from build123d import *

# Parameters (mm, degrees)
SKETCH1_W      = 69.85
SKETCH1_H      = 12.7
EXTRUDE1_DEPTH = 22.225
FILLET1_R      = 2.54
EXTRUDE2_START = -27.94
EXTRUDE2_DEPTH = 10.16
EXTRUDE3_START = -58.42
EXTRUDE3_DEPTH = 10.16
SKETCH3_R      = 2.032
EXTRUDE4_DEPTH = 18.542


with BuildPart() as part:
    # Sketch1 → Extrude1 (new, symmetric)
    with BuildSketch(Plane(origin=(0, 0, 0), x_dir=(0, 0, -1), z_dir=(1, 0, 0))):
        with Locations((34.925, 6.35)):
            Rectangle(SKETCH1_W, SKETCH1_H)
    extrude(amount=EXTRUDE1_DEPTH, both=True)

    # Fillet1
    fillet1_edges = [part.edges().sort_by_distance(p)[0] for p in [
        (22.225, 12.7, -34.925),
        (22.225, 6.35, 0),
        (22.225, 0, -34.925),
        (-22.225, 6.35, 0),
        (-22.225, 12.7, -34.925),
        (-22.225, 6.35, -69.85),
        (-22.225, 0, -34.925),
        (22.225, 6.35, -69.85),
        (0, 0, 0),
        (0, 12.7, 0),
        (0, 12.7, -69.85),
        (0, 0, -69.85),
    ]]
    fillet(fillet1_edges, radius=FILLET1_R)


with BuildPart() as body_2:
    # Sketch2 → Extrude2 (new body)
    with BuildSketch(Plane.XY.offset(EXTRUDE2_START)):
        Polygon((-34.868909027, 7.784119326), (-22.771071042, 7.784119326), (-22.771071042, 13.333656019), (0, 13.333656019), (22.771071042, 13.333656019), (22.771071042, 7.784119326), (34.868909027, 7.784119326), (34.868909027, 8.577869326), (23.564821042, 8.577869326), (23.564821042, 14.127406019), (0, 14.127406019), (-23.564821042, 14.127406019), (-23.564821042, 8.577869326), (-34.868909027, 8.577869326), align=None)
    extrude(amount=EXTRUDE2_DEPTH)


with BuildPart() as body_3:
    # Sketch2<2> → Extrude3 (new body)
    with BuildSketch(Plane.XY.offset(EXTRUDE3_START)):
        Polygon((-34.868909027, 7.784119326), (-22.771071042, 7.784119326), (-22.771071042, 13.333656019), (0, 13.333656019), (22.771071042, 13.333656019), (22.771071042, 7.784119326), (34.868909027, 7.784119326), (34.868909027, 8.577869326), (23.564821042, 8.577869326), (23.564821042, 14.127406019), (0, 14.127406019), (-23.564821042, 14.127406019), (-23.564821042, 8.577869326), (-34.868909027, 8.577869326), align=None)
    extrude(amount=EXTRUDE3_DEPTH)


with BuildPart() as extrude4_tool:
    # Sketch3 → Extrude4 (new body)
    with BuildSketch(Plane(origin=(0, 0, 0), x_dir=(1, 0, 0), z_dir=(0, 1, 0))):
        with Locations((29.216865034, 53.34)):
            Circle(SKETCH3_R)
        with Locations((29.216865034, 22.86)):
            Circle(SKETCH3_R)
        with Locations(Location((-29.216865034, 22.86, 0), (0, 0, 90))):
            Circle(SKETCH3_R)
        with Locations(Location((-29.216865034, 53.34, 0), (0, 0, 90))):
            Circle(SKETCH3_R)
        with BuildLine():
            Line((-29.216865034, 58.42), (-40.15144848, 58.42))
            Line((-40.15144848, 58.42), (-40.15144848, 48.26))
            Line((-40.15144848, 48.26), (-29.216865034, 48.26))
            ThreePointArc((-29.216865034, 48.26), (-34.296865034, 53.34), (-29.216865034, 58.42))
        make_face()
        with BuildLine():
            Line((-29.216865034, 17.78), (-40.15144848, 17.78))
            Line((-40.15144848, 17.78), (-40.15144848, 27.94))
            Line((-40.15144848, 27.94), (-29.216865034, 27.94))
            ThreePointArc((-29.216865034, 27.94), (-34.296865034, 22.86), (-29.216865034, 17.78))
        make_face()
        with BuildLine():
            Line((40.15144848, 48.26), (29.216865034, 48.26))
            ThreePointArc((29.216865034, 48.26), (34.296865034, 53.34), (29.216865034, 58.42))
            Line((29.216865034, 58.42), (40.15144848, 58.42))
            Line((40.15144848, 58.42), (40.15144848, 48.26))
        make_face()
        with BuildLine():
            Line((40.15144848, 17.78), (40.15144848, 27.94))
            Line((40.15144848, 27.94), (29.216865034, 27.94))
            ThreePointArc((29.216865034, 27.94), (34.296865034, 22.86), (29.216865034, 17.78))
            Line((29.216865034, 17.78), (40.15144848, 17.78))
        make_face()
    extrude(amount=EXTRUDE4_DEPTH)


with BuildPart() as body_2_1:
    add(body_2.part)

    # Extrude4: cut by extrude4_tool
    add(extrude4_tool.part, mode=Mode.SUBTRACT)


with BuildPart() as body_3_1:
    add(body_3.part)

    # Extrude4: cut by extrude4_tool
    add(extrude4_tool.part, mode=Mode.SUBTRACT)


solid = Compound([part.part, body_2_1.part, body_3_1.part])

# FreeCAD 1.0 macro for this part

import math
import FreeCAD as App
import Part
import Sketcher
Q = App.Units.Quantity

doc = App.newDocument("Part")
body = doc.addObject("PartDesign::Body", "Body")

sketch1 = doc.addObject("Sketcher::SketchObject", "Sketch")
body.addObject(sketch1)
sketch1.AttachmentSupport = (doc.YZ_Plane, [""])
sketch1.MapMode = "FlatFace"
sketch1.addGeometry([
    Part.LineSegment(App.Vector(13, 0, 0), App.Vector(0, 0, 0)),
    Part.LineSegment(App.Vector(0, 0, 0), App.Vector(0, -70, 0)),
    Part.LineSegment(App.Vector(0, -70, 0), App.Vector(13, -70, 0)),
    Part.LineSegment(App.Vector(13, -70, 0), App.Vector(13, 0, 0)),
], False)
sketch1.addConstraint([
    Sketcher.Constraint("Coincident", 0, 2, 1, 1),
    Sketcher.Constraint("Coincident", 1, 2, 2, 1),
    Sketcher.Constraint("Coincident", 2, 2, 3, 1),
    Sketcher.Constraint("Coincident", 3, 2, 0, 1),
    Sketcher.Constraint("Horizontal", 0),
    Sketcher.Constraint("Vertical", 1),
    Sketcher.Constraint("Horizontal", 2),
    Sketcher.Constraint("Vertical", 3),
    Sketcher.Constraint("Coincident", 0, 2, -1, 1),
    Sketcher.Constraint("DistanceX", 0, 2, 0, 1, Q("0.5 in")),
    Sketcher.Constraint("DistanceY", 1, 2, 1, 1, Q("2.75 in")),
])
pad1 = doc.addObject("PartDesign::Pad", "Pad")
body.addObject(pad1)
pad1.Profile = sketch1
pad1.Length = Q("1.75 in")
pad1.Midplane = True
doc.recompute()

fillet = doc.addObject("PartDesign::Fillet", "Fillet")
body.addObject(fillet)
fillet.Base = (pad1, ["Edge1"])
fillet.UseAllEdges = True
fillet.Radius = Q("0.1 in")
body2 = doc.addObject("PartDesign::Body", "Body001")

sketch2 = doc.addObject("Sketcher::SketchObject", "Sketch001")
body2.addObject(sketch2)
sketch2.AttachmentSupport = (doc.getObject("XY_Plane001"), [""])
sketch2.MapMode = "FlatFace"
sketch2.AttachmentOffset = App.Placement(App.Vector(0, 0, -1.1 * 25.4), App.Rotation())
sketch2.addGeometry([
    Part.LineSegment(App.Vector(-34.9, 7.8, 0), App.Vector(-22.8, 7.8, 0)),
    Part.LineSegment(App.Vector(-22.8, 7.8, 0), App.Vector(-22.8, 13.3, 0)),
    Part.LineSegment(App.Vector(-22.8, 13.3, 0), App.Vector(22.8, 13.3, 0)),
    Part.LineSegment(App.Vector(22.8, 13.3, 0), App.Vector(22.8, 7.8, 0)),
    Part.LineSegment(App.Vector(22.8, 7.8, 0), App.Vector(34.9, 7.8, 0)),
    Part.LineSegment(App.Vector(34.9, 7.8, 0), App.Vector(34.9, 8.6, 0)),
    Part.LineSegment(App.Vector(34.9, 8.6, 0), App.Vector(23.6, 8.6, 0)),
    Part.LineSegment(App.Vector(23.6, 8.6, 0), App.Vector(23.6, 14.1, 0)),
    Part.LineSegment(App.Vector(23.6, 14.1, 0), App.Vector(-23.6, 14.1, 0)),
    Part.LineSegment(App.Vector(-23.6, 14.1, 0), App.Vector(-23.6, 8.6, 0)),
    Part.LineSegment(App.Vector(-23.6, 8.6, 0), App.Vector(-34.9, 8.6, 0)),
    Part.LineSegment(App.Vector(-34.9, 8.6, 0), App.Vector(-34.9, 7.8, 0)),
], False)
sketch2.addConstraint([
    Sketcher.Constraint("Coincident", 0, 2, 1, 1),
    Sketcher.Constraint("Coincident", 1, 2, 2, 1),
    Sketcher.Constraint("Coincident", 2, 2, 3, 1),
    Sketcher.Constraint("Coincident", 3, 2, 4, 1),
    Sketcher.Constraint("Coincident", 4, 2, 5, 1),
    Sketcher.Constraint("Coincident", 5, 2, 6, 1),
    Sketcher.Constraint("Coincident", 6, 2, 7, 1),
    Sketcher.Constraint("Coincident", 7, 2, 8, 1),
    Sketcher.Constraint("Coincident", 8, 2, 9, 1),
    Sketcher.Constraint("Coincident", 9, 2, 10, 1),
    Sketcher.Constraint("Coincident", 10, 2, 11, 1),
    Sketcher.Constraint("Coincident", 11, 2, 0, 1),
    Sketcher.Constraint("Horizontal", 0),
    Sketcher.Constraint("Vertical", 1),
    Sketcher.Constraint("Horizontal", 2),
    Sketcher.Constraint("Vertical", 3),
    Sketcher.Constraint("Horizontal", 4),
    Sketcher.Constraint("Vertical", 5),
    Sketcher.Constraint("Horizontal", 6),
    Sketcher.Constraint("Vertical", 7),
    Sketcher.Constraint("Horizontal", 8),
    Sketcher.Constraint("Vertical", 9),
    Sketcher.Constraint("Horizontal", 10),
    Sketcher.Constraint("Vertical", 11),
    Sketcher.Constraint("Symmetric", 0, 2, 3, 2, -2),
    Sketcher.Constraint("Symmetric", 6, 2, 9, 2, -2),
    Sketcher.Constraint("Equal", 0, 4),
    Sketcher.Constraint("Equal", 3, 7),
    Sketcher.Constraint("DistanceY", 5, 1, 5, 2, Q("0.03125 in")),
    Sketcher.Constraint("DistanceX", 3, 2, 6, 2, Q("0.03125 in")),
    Sketcher.Constraint("DistanceX", 0, 1, 0, 2, 12.097838),
    Sketcher.Constraint("DistanceX", 2, 1, 2, 2, 45.542142),
    Sketcher.Constraint("DistanceY", 1, 1, 1, 2, 5.549537),
    Sketcher.Constraint("DistanceY", -1, 1, 0, 2, 7.784119),
])
pad2 = doc.addObject("PartDesign::Pad", "Pad001")
body2.addObject(pad2)
pad2.Profile = sketch2
pad2.Length = Q("0.4 in")
body3 = doc.addObject("PartDesign::Body", "Body002")

sketch3 = doc.addObject("Sketcher::SketchObject", "Sketch002")
body3.addObject(sketch3)
sketch3.AttachmentSupport = (doc.getObject("XY_Plane002"), [""])
sketch3.MapMode = "FlatFace"
sketch3.AttachmentOffset = App.Placement(App.Vector(0, 0, -2.3 * 25.4), App.Rotation())
sketch3.addGeometry([
    Part.LineSegment(App.Vector(-34.9, 7.8, 0), App.Vector(-22.8, 7.8, 0)),
    Part.LineSegment(App.Vector(-22.8, 7.8, 0), App.Vector(-22.8, 13.3, 0)),
    Part.LineSegment(App.Vector(-22.8, 13.3, 0), App.Vector(22.8, 13.3, 0)),
    Part.LineSegment(App.Vector(22.8, 13.3, 0), App.Vector(22.8, 7.8, 0)),
    Part.LineSegment(App.Vector(22.8, 7.8, 0), App.Vector(34.9, 7.8, 0)),
    Part.LineSegment(App.Vector(34.9, 7.8, 0), App.Vector(34.9, 8.6, 0)),
    Part.LineSegment(App.Vector(34.9, 8.6, 0), App.Vector(23.6, 8.6, 0)),
    Part.LineSegment(App.Vector(23.6, 8.6, 0), App.Vector(23.6, 14.1, 0)),
    Part.LineSegment(App.Vector(23.6, 14.1, 0), App.Vector(-23.6, 14.1, 0)),
    Part.LineSegment(App.Vector(-23.6, 14.1, 0), App.Vector(-23.6, 8.6, 0)),
    Part.LineSegment(App.Vector(-23.6, 8.6, 0), App.Vector(-34.9, 8.6, 0)),
    Part.LineSegment(App.Vector(-34.9, 8.6, 0), App.Vector(-34.9, 7.8, 0)),
], False)
sketch3.addConstraint([
    Sketcher.Constraint("Coincident", 0, 2, 1, 1),
    Sketcher.Constraint("Coincident", 1, 2, 2, 1),
    Sketcher.Constraint("Coincident", 2, 2, 3, 1),
    Sketcher.Constraint("Coincident", 3, 2, 4, 1),
    Sketcher.Constraint("Coincident", 4, 2, 5, 1),
    Sketcher.Constraint("Coincident", 5, 2, 6, 1),
    Sketcher.Constraint("Coincident", 6, 2, 7, 1),
    Sketcher.Constraint("Coincident", 7, 2, 8, 1),
    Sketcher.Constraint("Coincident", 8, 2, 9, 1),
    Sketcher.Constraint("Coincident", 9, 2, 10, 1),
    Sketcher.Constraint("Coincident", 10, 2, 11, 1),
    Sketcher.Constraint("Coincident", 11, 2, 0, 1),
    Sketcher.Constraint("Horizontal", 0),
    Sketcher.Constraint("Vertical", 1),
    Sketcher.Constraint("Horizontal", 2),
    Sketcher.Constraint("Vertical", 3),
    Sketcher.Constraint("Horizontal", 4),
    Sketcher.Constraint("Vertical", 5),
    Sketcher.Constraint("Horizontal", 6),
    Sketcher.Constraint("Vertical", 7),
    Sketcher.Constraint("Horizontal", 8),
    Sketcher.Constraint("Vertical", 9),
    Sketcher.Constraint("Horizontal", 10),
    Sketcher.Constraint("Vertical", 11),
    Sketcher.Constraint("Symmetric", 0, 2, 3, 2, -2),
    Sketcher.Constraint("Symmetric", 6, 2, 9, 2, -2),
    Sketcher.Constraint("Equal", 0, 4),
    Sketcher.Constraint("Equal", 3, 7),
    Sketcher.Constraint("DistanceY", 5, 1, 5, 2, Q("0.03125 in")),
    Sketcher.Constraint("DistanceX", 3, 2, 6, 2, Q("0.03125 in")),
    Sketcher.Constraint("DistanceX", 0, 1, 0, 2, 12.097838),
    Sketcher.Constraint("DistanceX", 2, 1, 2, 2, 45.542142),
    Sketcher.Constraint("DistanceY", 1, 1, 1, 2, 5.549537),
    Sketcher.Constraint("DistanceY", -1, 1, 0, 2, 7.784119),
])
pad3 = doc.addObject("PartDesign::Pad", "Pad002")
body3.addObject(pad3)
pad3.Profile = sketch3
pad3.Length = Q("0.4 in")
body4 = doc.addObject("PartDesign::Body", "Body003")
body4.AllowCompound = True

sketch4 = doc.addObject("Sketcher::SketchObject", "Sketch003")
body4.addObject(sketch4)
sketch4.AttachmentSupport = (doc.getObject("XZ_Plane003"), [""])
sketch4.MapMode = "FlatFace"
sketch4.addGeometry([
    Part.Circle(App.Vector(29.2, -53.3, 0), App.Vector(0, 0, 1), 2),
    Part.Circle(App.Vector(29.2, -22.9, 0), App.Vector(0, 0, 1), 2),
    Part.Circle(App.Vector(-29.2, -22.9, 0), App.Vector(0, 0, 1), 2),
    Part.Circle(App.Vector(-29.2, -53.3, 0), App.Vector(0, 0, 1), 2),
    Part.LineSegment(App.Vector(-29.2, -58.4, 0), App.Vector(-40.2, -58.4, 0)),
    Part.LineSegment(App.Vector(-40.2, -58.4, 0), App.Vector(-40.2, -48.3, 0)),
    Part.LineSegment(App.Vector(-40.2, -48.3, 0), App.Vector(-29.2, -48.3, 0)),
    Part.ArcOfCircle(Part.Circle(App.Vector(-29.2, -53.3, 0), App.Vector(0, 0, 1), 5.1), math.radians(90), math.radians(270)),
    Part.LineSegment(App.Vector(-40.2, -17.8, 0), App.Vector(-29.2, -17.8, 0)),
    Part.ArcOfCircle(Part.Circle(App.Vector(-29.2, -22.9, 0), App.Vector(0, 0, 1), 5.1), math.radians(90), math.radians(270)),
    Part.LineSegment(App.Vector(-29.2, -27.9, 0), App.Vector(-40.2, -27.9, 0)),
    Part.LineSegment(App.Vector(-40.2, -27.9, 0), App.Vector(-40.2, -17.8, 0)),
    Part.LineSegment(App.Vector(29.2, -48.3, 0), App.Vector(40.2, -48.3, 0)),
    Part.LineSegment(App.Vector(40.2, -48.3, 0), App.Vector(40.2, -58.4, 0)),
    Part.LineSegment(App.Vector(40.2, -58.4, 0), App.Vector(29.2, -58.4, 0)),
    Part.ArcOfCircle(Part.Circle(App.Vector(29.2, -53.3, 0), App.Vector(0, 0, 1), 5.1), math.radians(-90), math.radians(90)),
    Part.LineSegment(App.Vector(40.2, -17.8, 0), App.Vector(40.2, -27.9, 0)),
    Part.LineSegment(App.Vector(40.2, -27.9, 0), App.Vector(29.2, -27.9, 0)),
    Part.ArcOfCircle(Part.Circle(App.Vector(29.2, -22.9, 0), App.Vector(0, 0, 1), 5.1), math.radians(-90), math.radians(90)),
    Part.LineSegment(App.Vector(29.2, -17.8, 0), App.Vector(40.2, -17.8, 0)),
], False)
sketch4.addConstraint([
    Sketcher.Constraint("Coincident", 4, 2, 5, 1),
    Sketcher.Constraint("Coincident", 5, 2, 6, 1),
    Sketcher.Constraint("Tangent", 6, 2, 7, 1),
    Sketcher.Constraint("Tangent", 7, 2, 4, 1),
    Sketcher.Constraint("Tangent", 8, 2, 9, 1),
    Sketcher.Constraint("Tangent", 9, 2, 10, 1),
    Sketcher.Constraint("Coincident", 10, 2, 11, 1),
    Sketcher.Constraint("Coincident", 11, 2, 8, 1),
    Sketcher.Constraint("Coincident", 12, 2, 13, 1),
    Sketcher.Constraint("Coincident", 13, 2, 14, 1),
    Sketcher.Constraint("Tangent", 14, 2, 15, 1),
    Sketcher.Constraint("Tangent", 15, 2, 12, 1),
    Sketcher.Constraint("Coincident", 16, 2, 17, 1),
    Sketcher.Constraint("Tangent", 17, 2, 18, 1),
    Sketcher.Constraint("Tangent", 18, 2, 19, 1),
    Sketcher.Constraint("Coincident", 19, 2, 16, 1),
    Sketcher.Constraint("Horizontal", 4),
    Sketcher.Constraint("Vertical", 5),
    Sketcher.Constraint("Horizontal", 6),
    Sketcher.Constraint("Horizontal", 8),
    Sketcher.Constraint("Horizontal", 10),
    Sketcher.Constraint("Vertical", 11),
    Sketcher.Constraint("Horizontal", 12),
    Sketcher.Constraint("Vertical", 13),
    Sketcher.Constraint("Horizontal", 14),
    Sketcher.Constraint("Vertical", 16),
    Sketcher.Constraint("Horizontal", 17),
    Sketcher.Constraint("Horizontal", 19),
    Sketcher.Constraint("Coincident", 7, 3, 3, 3),
    Sketcher.Constraint("Coincident", 9, 3, 2, 3),
    Sketcher.Constraint("Coincident", 15, 3, 0, 3),
    Sketcher.Constraint("Coincident", 18, 3, 1, 3),
    Sketcher.Constraint("Equal", 0, 1),
    Sketcher.Constraint("Equal", 1, 2),
    Sketcher.Constraint("Equal", 2, 3),
    Sketcher.Constraint("Equal", 7, 9),
    Sketcher.Constraint("Equal", 9, 15),
    Sketcher.Constraint("Equal", 15, 18),
    Sketcher.Constraint("Symmetric", 1, 3, 2, 3, -2),
    Sketcher.Constraint("Symmetric", 0, 3, 3, 3, -2),
    Sketcher.Constraint("Vertical", 0, 3, 1, 3),
    Sketcher.Constraint("Vertical", 5, 2, 10, 2),
    Sketcher.Constraint("Vertical", 13, 2, 16, 2),
    Sketcher.Constraint("Equal", 10, 12),
    Sketcher.Constraint("Radius", 7, Q("0.2 in")),
    Sketcher.Constraint("Diameter", 0, Q("0.16 in")),
    Sketcher.Constraint("DistanceY", 5, 2, 2, 3, Q("1 in")),
    Sketcher.Constraint("DistanceY", 0, 3, -1, 1, Q("2.1 in")),
    Sketcher.Constraint("DistanceX", 4, 2, 4, 1, 10.934583),
    Sketcher.Constraint("DistanceX", 4, 2, -1, 1, 40.151448),
])
pad4 = doc.addObject("PartDesign::Pad", "Pad003")
body4.addObject(pad4)
pad4.Profile = sketch4
pad4.Length = Q("0.73 in")
pad4.Reversed = True
doc.recompute()

body5 = doc.addObject("PartDesign::Body", "Body004")
body5.BaseFeature = body4
boolean = doc.addObject("PartDesign::Boolean", "Boolean")
body2.addObject(boolean)
boolean.Type = "Cut"
boolean.addObjects([body5])
doc.recompute()

boolean2 = doc.addObject("PartDesign::Boolean", "Boolean001")
body3.addObject(boolean2)
boolean2.Type = "Cut"
boolean2.addObjects([body4])

doc.recompute()
